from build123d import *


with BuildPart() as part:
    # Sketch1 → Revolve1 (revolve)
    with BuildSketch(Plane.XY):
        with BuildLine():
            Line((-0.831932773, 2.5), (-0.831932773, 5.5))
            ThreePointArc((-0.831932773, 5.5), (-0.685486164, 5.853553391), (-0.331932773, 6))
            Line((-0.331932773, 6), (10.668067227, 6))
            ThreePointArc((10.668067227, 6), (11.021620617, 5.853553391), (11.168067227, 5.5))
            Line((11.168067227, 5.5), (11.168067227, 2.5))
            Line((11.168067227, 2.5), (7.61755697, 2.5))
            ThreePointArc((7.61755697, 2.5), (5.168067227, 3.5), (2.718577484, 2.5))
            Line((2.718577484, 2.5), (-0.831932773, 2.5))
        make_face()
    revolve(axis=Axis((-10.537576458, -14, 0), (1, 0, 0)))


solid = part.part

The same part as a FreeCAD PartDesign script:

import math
import FreeCAD as App
import Part
import Sketcher
from FreeCAD import Vector

doc = App.newDocument("Part")
params = doc.addObject("Spreadsheet::Sheet", "Params")
for row, (alias, value) in enumerate([
    ("sketch1_radius", "3.5 mm"),
    ("sketch1_radius2", "0.5 mm"),
    ("sketch1_width", "11 mm"),
    ("sketch1_height", "3 mm"),
    ("revolution_angle", "360 deg"),
], start=1):
    params.set(f"A{row}", alias)
    params.set(f"B{row}", "=" + value)
    params.setAlias(f"B{row}", alias)

body = doc.addObject("PartDesign::Body", "Body")

# Sketch on XY plane
sketch1 = doc.addObject("Sketcher::SketchObject", "Sketch")
body.addObject(sketch1)
sketch1.AttachmentSupport = (doc.XY_Plane, [""])
sketch1.MapMode = "FlatFace"
sketch1.addGeometry(Part.LineSegment(Vector(-0.831933, 5.5, 0), Vector(-0.831933, 2.5, 0)), False)
sketch1.addGeometry(Part.LineSegment(Vector(-0.831933, 2.5, 0), Vector(2.718577, 2.5, 0)), False)
sketch1.addGeometry(Part.ArcOfCircle(Part.Circle(Vector(5.168067, 0, 0), Vector(0, 0, 1), 3.5), math.radians(45.584691), math.radians(134.415309)), False)
sketch1.addGeometry(Part.LineSegment(Vector(7.617557, 2.5, 0), Vector(11.168067, 2.5, 0)), False)
sketch1.addGeometry(Part.LineSegment(Vector(11.168067, 2.5, 0), Vector(11.168067, 5.5, 0)), False)
sketch1.addGeometry(Part.ArcOfCircle(Part.Circle(Vector(10.668067, 5.5, 0), Vector(0, 0, 1), 0.5), math.radians(0), math.radians(90)), False)
sketch1.addGeometry(Part.LineSegment(Vector(10.668067, 6, 0), Vector(-0.331933, 6, 0)), False)
sketch1.addGeometry(Part.ArcOfCircle(Part.Circle(Vector(-0.331933, 5.5, 0), Vector(0, 0, 1), 0.5), math.radians(90), math.radians(180)), False)
sketch1.addGeometry(Part.LineSegment(Vector(-0.831933, -14, 0), Vector(11.168067, -14, 0)), True)  # axis
sketch1.addConstraint(Sketcher.Constraint("Coincident", 0, 2, 1, 1))
sketch1.addConstraint(Sketcher.Constraint("Coincident", 1, 2, 2, 2))
sketch1.addConstraint(Sketcher.Constraint("Coincident", 2, 1, 3, 1))
sketch1.addConstraint(Sketcher.Constraint("Coincident", 3, 2, 4, 1))
sketch1.addConstraint(Sketcher.Constraint("Tangent", 4, 2, 5, 1))
sketch1.addConstraint(Sketcher.Constraint("Tangent", 5, 2, 6, 1))
sketch1.addConstraint(Sketcher.Constraint("Tangent", 6, 2, 7, 1))
sketch1.addConstraint(Sketcher.Constraint("Tangent", 7, 2, 0, 1))
sketch1.addConstraint(Sketcher.Constraint("Vertical", 0))
sketch1.addConstraint(Sketcher.Constraint("Horizontal", 1))
sketch1.addConstraint(Sketcher.Constraint("Horizontal", 3))
sketch1.addConstraint(Sketcher.Constraint("Vertical", 4))
sketch1.addConstraint(Sketcher.Constraint("Horizontal", 6))
sketch1.addConstraint(Sketcher.Constraint("Horizontal", 8))
sketch1.addConstraint(Sketcher.Constraint("Equal", 5, 7))
sketch1.addConstraint(Sketcher.Constraint("PointOnObject", 2, 3, -1))
sketch1.addConstraint(Sketcher.Constraint("Horizontal", 1, 2, 2, 1))
sketch1.addConstraint(Sketcher.Constraint("Vertical", 7, 2, 8, 1))
sketch1.addConstraint(Sketcher.Constraint("Vertical", 4, 2, 8, 2))
sketch1.addConstraint(Sketcher.Constraint("Equal", 1, 3))
sketch1.addConstraint(Sketcher.Constraint("Radius", 2, 3.5))
sketch1.addConstraint(Sketcher.Constraint("Radius", 5, 0.5))
sketch1.addConstraint(Sketcher.Constraint("DistanceX", 6, 2, 6, 1, 11.0))
sketch1.addConstraint(Sketcher.Constraint("DistanceY", 0, 2, 0, 1, 3.0))
sketch1.addConstraint(Sketcher.Constraint("DistanceY", -1, 1, 5, 2, 6.0))
sketch1.addConstraint(Sketcher.Constraint("DistanceY", 8, 1, -1, 1, 14.0))
sketch1.addConstraint(Sketcher.Constraint("DistanceX", -1, 1, 2, 3, 5.168067))
sketch1.setExpression("Constraints[20]", "Params.sketch1_radius")
sketch1.setExpression("Constraints[21]", "Params.sketch1_radius2")
sketch1.setExpression("Constraints[22]", "Params.sketch1_width")
sketch1.setExpression("Constraints[23]", "Params.sketch1_height")
revolution = doc.addObject("PartDesign::Revolution", "Revolution")
body.addObject(revolution)
revolution.Profile = sketch1
revolution.ReferenceAxis = (sketch1, ["Axis0"])
revolution.setExpression("Angle", "Params.revolution_angle")

doc.recompute()
